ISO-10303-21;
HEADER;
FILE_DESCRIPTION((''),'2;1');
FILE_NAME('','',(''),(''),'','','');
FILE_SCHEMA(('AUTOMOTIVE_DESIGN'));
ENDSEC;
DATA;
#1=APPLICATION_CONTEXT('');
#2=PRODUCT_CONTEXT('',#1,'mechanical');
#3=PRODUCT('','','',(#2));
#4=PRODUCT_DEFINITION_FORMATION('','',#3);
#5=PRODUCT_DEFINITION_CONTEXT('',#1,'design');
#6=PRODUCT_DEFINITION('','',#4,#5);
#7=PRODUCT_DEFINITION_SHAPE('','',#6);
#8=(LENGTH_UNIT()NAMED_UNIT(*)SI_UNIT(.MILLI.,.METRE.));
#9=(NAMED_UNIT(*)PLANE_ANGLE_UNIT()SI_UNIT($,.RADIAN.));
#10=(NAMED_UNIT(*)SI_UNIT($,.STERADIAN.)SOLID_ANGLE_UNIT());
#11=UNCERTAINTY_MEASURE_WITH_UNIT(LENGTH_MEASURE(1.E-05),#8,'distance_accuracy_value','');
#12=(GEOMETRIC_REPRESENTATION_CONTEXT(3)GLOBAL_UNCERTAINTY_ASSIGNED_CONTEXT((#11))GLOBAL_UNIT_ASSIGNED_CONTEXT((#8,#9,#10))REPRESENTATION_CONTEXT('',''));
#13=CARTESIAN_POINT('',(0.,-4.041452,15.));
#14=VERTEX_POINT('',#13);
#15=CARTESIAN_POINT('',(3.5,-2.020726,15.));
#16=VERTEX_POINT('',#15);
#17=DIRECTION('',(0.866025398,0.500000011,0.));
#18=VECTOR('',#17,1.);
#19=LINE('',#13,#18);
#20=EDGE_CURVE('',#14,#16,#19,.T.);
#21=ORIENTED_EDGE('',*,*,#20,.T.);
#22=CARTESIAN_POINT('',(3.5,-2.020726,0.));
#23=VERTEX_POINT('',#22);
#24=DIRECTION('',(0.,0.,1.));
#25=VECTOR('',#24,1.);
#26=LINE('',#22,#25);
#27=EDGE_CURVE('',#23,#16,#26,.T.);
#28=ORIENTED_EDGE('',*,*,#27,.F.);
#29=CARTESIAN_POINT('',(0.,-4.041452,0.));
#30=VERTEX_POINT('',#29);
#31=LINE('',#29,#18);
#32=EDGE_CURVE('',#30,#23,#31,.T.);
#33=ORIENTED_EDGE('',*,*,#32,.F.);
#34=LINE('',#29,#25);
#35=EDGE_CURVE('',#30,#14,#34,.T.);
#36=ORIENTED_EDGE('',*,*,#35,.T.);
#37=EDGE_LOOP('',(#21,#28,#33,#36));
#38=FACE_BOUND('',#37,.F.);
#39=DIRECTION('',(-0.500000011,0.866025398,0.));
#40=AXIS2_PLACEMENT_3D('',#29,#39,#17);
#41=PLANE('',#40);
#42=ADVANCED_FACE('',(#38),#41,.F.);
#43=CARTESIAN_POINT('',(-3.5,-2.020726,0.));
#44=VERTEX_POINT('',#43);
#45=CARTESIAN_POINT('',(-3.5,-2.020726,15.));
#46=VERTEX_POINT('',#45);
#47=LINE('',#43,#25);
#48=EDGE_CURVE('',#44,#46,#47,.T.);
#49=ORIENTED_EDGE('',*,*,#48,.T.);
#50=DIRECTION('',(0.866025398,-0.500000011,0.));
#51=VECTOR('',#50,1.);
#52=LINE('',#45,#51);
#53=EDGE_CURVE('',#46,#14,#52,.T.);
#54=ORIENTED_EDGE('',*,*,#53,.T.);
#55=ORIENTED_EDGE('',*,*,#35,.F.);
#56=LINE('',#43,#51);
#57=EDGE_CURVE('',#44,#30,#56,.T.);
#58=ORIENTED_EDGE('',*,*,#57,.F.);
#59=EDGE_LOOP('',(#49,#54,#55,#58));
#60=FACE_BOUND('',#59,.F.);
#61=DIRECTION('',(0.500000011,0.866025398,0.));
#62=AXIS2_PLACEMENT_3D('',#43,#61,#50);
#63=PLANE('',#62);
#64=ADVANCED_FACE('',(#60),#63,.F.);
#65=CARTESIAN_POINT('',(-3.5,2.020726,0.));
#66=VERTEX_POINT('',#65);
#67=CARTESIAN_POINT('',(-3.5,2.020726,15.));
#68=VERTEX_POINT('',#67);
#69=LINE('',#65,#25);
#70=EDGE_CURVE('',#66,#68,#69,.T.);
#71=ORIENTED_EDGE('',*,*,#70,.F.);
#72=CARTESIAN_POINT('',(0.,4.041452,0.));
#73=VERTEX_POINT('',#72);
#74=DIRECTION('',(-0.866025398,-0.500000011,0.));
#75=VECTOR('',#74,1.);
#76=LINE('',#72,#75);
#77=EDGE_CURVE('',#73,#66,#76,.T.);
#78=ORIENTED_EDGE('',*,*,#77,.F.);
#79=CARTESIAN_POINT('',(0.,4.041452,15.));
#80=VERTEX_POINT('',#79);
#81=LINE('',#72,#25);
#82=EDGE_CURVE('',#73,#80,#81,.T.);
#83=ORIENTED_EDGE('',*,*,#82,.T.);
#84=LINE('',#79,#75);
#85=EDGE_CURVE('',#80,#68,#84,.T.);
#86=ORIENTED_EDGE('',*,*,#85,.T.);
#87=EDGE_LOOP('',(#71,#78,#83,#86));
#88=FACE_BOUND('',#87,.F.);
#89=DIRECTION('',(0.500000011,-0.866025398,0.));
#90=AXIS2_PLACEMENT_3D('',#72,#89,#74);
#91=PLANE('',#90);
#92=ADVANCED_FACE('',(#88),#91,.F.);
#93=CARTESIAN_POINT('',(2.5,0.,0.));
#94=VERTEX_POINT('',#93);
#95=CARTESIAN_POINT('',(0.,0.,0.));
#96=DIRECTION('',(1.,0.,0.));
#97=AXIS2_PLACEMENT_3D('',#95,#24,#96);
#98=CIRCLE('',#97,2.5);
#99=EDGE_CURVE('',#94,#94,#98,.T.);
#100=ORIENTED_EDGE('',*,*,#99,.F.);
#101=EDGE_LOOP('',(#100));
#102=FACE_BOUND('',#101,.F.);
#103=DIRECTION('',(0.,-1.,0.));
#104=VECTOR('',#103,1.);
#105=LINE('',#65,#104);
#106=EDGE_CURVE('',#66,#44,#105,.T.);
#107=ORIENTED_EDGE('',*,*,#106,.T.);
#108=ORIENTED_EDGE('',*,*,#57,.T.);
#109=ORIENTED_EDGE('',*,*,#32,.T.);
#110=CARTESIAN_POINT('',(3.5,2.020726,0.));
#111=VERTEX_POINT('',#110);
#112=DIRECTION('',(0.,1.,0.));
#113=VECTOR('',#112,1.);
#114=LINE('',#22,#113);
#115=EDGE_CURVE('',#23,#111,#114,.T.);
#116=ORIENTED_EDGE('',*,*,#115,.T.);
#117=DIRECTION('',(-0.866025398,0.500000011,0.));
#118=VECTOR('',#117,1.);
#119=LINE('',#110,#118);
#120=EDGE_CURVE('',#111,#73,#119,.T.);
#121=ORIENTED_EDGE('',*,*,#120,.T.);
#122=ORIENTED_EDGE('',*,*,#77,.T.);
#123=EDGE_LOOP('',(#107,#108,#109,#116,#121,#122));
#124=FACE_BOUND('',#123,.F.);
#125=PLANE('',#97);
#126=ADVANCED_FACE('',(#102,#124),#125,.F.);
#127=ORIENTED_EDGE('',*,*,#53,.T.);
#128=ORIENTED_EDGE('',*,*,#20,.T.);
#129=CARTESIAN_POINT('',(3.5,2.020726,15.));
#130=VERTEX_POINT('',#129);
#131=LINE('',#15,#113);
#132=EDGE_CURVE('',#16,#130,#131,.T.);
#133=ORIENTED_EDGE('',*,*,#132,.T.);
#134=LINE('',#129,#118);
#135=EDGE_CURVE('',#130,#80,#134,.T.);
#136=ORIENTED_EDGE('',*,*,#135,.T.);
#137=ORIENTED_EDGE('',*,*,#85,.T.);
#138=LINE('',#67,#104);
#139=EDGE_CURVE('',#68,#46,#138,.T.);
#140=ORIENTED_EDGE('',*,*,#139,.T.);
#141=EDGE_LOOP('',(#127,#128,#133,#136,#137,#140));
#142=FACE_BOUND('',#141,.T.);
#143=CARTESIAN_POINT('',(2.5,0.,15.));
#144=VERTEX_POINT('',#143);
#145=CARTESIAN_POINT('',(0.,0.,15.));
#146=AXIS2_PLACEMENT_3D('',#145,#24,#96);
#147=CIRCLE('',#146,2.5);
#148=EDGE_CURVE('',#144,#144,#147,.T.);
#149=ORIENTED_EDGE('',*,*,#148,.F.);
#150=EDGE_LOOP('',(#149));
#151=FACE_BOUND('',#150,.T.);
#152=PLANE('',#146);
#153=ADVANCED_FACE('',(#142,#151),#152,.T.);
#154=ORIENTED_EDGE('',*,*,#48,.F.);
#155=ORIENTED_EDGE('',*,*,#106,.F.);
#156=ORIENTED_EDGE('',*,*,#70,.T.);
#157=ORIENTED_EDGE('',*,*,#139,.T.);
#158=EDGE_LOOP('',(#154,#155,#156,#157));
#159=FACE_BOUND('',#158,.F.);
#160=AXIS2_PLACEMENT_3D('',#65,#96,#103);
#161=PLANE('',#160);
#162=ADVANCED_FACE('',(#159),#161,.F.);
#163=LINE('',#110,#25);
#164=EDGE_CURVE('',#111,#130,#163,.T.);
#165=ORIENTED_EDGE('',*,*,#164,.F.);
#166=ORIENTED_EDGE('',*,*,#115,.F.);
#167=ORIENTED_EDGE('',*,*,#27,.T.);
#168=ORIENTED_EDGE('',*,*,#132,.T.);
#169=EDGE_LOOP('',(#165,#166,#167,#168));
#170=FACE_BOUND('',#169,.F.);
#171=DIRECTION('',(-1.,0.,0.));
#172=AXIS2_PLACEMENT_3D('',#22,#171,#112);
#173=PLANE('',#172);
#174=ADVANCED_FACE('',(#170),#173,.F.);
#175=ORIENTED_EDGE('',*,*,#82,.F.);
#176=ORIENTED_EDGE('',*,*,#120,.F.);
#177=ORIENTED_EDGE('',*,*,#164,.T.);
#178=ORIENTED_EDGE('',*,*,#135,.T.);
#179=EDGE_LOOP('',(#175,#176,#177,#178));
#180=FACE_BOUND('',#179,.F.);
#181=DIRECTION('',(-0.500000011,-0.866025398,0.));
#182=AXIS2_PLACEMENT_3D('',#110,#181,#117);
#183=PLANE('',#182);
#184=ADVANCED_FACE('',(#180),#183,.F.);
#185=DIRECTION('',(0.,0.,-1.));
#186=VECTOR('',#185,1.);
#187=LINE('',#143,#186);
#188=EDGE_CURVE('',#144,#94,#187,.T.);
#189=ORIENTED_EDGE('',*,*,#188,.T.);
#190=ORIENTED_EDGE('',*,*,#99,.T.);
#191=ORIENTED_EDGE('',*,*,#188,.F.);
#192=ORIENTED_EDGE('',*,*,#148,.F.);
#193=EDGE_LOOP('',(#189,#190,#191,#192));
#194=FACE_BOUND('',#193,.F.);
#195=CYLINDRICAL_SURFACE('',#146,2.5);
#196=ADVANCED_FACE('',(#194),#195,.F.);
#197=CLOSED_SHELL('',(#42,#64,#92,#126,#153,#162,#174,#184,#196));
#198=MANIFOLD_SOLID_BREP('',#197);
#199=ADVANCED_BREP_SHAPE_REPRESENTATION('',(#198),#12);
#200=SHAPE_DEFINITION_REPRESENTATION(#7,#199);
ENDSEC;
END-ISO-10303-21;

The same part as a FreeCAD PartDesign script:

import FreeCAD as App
import Part
import Sketcher
Q = App.Units.Quantity


def add_polygon(sketch, points):
    """Adds a closed chain of lines whose ends are joined by coincident constraints."""
    first, n = sketch.GeometryCount, len(points)
    for a, b in zip(points, points[1:] + points[:1]):
        sketch.addGeometry(Part.LineSegment(App.Vector(*a, 0), App.Vector(*b, 0)), False)
    for i in range(n):
        sketch.addConstraint(Sketcher.Constraint("Coincident", first + i, 2, first + (i + 1) % n, 1))

doc = App.newDocument("Part")
params = doc.addObject("Spreadsheet::Sheet", "Params")
for row, (alias, value) in enumerate([
    ("pad1_length", "15 mm"),
    ("sketch2_diameter", "5 mm"),
    ("pocket1_length", "25 mm"),
], start=1):
    params.set(f"A{row}", alias)
    params.set(f"B{row}", "=" + value)
    params.setAlias(f"B{row}", alias)

body = doc.addObject("PartDesign::Body", "Body")

sketch1 = body.newObject("Sketcher::SketchObject", "Sketch")
sketch1.AttachmentSupport = (doc.getObject("XY_Plane"), [""])
sketch1.MapMode = "FlatFace"
add_polygon(sketch1, [(3.5, -2.020726), (3.5, 2.020726), (0, 4.041452), (-3.5, 2.020726), (-3.5, -2.020726), (0, -4.041452)])
sketch1.addConstraint([
    Sketcher.Constraint("Vertical", 0),
    Sketcher.Constraint("Vertical", 3),
    Sketcher.Constraint("Symmetric", 0, 2, 3, 2, -1, 1),
    Sketcher.Constraint("Symmetric", 1, 2, 4, 2, -1, 1),
    Sketcher.Constraint("PointOnObject", 1, 2, -2),
    Sketcher.Constraint("Parallel", 2, 5),
    Sketcher.Constraint("Horizontal", 0, 2, 2, 2),
    Sketcher.Constraint("Angle", 1, Q("149.999999 deg")),
    Sketcher.Constraint("DistanceX", 2, 2, 0, 2, Q("7 mm")),
    Sketcher.Constraint("DistanceY", 0, 1, 0, 2, Q("4.041452 mm")),
])
pad1 = body.newObject("PartDesign::Pad", "Pad")
pad1.Profile = sketch1
pad1.setExpression("Length", "Params.pad1_length")

sketch2 = body.newObject("Sketcher::SketchObject", "Sketch001")
sketch2.AttachmentSupport = (doc.getObject("XY_Plane"), [""])
sketch2.MapMode = "FlatFace"
sketch2.AttachmentOffset = App.Placement(App.Vector(0, 0, 15), App.Rotation())
sketch2.addGeometry(Part.Circle(App.Vector(0, 0, 0), App.Vector(0, 0, 1), 2.5), False)
sketch2.addConstraint([
    Sketcher.Constraint("Coincident", 0, 3, -1, 1),
    Sketcher.Constraint("Diameter", 0, Q("5 mm")),
])
sketch2.setExpression("Constraints[1]", "Params.sketch2_diameter")
pocket1 = body.newObject("PartDesign::Pocket", "Pocket")
pocket1.Profile = sketch2
pocket1.setExpression("Length", "Params.pocket1_length")

doc.recompute()
